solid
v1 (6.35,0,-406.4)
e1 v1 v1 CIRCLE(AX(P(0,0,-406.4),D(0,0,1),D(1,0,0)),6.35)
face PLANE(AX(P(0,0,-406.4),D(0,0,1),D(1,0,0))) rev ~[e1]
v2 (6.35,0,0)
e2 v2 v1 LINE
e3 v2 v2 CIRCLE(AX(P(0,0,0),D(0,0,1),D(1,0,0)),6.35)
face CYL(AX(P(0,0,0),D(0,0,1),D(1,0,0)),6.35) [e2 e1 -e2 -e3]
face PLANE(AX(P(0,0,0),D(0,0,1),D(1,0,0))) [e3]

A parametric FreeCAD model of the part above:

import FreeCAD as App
import Part
import Sketcher

V = App.Vector
Q = App.Units.Quantity

doc = App.newDocument("Part")
body = doc.addObject("PartDesign::Body", "Body")

# Sketch on XY plane
sketch1 = doc.addObject("Sketcher::SketchObject", "Sketch")
body.addObject(sketch1)
sketch1.AttachmentSupport = (doc.XY_Plane, [""])
sketch1.MapMode = "FlatFace"
sketch1.addGeometry(Part.Circle(V(0, 0, 0), V(0, 0, 1), 6.35), False)
sketch1.addConstraint(Sketcher.Constraint("Coincident", 0, 3, -1, 1))
sketch1.addConstraint(Sketcher.Constraint("Diameter", 0, Q("0.5 in")))
pad1 = doc.addObject("PartDesign::Pad", "Pad")
body.addObject(pad1)
pad1.Profile = sketch1
pad1.Length = Q("16 in")
pad1.Reversed = True

doc.recompute()
